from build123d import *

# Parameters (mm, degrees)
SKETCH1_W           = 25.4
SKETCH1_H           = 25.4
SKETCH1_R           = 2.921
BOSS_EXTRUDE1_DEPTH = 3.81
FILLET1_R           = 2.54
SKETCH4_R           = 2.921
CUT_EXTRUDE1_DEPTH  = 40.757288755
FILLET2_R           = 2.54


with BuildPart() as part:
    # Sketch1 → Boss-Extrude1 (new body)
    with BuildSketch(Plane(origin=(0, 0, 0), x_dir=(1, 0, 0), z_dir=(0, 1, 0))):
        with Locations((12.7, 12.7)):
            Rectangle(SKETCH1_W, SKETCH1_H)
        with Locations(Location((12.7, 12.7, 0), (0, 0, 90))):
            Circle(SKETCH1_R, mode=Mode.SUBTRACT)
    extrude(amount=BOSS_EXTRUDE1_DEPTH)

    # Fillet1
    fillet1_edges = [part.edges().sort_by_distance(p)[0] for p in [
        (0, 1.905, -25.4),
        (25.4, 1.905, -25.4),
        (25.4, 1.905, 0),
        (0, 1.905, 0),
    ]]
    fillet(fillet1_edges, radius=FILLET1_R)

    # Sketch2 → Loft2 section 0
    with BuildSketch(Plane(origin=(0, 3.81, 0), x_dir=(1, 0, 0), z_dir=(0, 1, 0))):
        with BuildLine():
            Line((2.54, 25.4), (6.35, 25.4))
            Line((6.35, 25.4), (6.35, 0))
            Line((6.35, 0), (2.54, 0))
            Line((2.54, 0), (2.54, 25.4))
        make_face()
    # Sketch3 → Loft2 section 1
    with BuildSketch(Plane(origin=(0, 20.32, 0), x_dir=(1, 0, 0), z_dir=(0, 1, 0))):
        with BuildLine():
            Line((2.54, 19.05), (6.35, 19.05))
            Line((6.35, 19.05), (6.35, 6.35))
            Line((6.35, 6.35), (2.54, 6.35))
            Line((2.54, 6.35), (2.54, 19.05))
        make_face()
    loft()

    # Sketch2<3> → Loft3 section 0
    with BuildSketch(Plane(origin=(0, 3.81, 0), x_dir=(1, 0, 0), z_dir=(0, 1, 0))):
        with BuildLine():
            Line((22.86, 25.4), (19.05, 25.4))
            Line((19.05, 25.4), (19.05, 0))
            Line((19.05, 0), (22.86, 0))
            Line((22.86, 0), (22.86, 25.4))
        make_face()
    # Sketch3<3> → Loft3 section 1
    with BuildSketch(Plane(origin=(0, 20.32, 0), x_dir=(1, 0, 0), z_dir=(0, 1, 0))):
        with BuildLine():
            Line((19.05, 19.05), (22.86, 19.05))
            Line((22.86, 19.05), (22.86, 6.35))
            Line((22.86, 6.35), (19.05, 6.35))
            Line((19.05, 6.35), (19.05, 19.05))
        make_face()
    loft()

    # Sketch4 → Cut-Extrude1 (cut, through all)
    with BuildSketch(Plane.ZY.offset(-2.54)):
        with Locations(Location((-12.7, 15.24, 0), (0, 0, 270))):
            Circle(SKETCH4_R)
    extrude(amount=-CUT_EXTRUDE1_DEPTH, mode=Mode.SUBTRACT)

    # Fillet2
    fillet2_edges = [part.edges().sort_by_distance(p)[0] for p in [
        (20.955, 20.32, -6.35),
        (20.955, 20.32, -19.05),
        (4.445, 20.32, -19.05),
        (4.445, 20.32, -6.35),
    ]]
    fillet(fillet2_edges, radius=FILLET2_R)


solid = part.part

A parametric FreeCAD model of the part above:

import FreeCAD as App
import Part
import Sketcher
from FreeCAD import Vector
Q = App.Units.Quantity


def edges_at(feature, points):
    """Names of the edges that pass closest to the given points."""
    edges = feature.Shape.Edges
    near = lambda p: min(range(len(edges)), key=lambda i: edges[i].distToShape(Part.Vertex(*p))[0])
    return sorted({f"Edge{near(p) + 1}" for p in points})


def add_polygon(sketch, points):
    """Adds a closed chain of lines whose ends are joined by coincident constraints."""
    first, n = sketch.GeometryCount, len(points)
    for a, b in zip(points, points[1:] + points[:1]):
        sketch.addGeometry(Part.LineSegment(App.Vector(*a, 0), App.Vector(*b, 0)), False)
    for i in range(n):
        sketch.addConstraint(Sketcher.Constraint("Coincident", first + i, 2, first + (i + 1) % n, 1))

doc = App.newDocument("Part")
params = doc.addObject("Spreadsheet::Sheet", "Params")
for row, (alias, value) in enumerate([
    ("sketch1_diameter", "0.23 in"),
    ("sketch1_width", "1 in"),
    ("pad1_length", "0.15 in"),
    ("fillet_radius", "0.1 in"),
    ("sketch2_height", "1 in"),
    ("sketch2_width", "0.15 in"),
    ("sketch3_height", "0.5 in"),
    ("sketch3_width", "0.15 in"),
    ("sketch4_height", "1 in"),
    ("sketch4_width", "0.15 in"),
    ("sketch5_height", "0.5 in"),
    ("sketch5_width", "0.15 in"),
    ("sketch6_diameter", "0.23 in"),
    ("fillet2_radius", "0.1 in"),
], start=1):
    params.set(f"A{row}", alias)
    params.set(f"B{row}", "=" + value)
    params.setAlias(f"B{row}", alias)

body = doc.addObject("PartDesign::Body", "Body")

# Sketch on XZ plane
sketch1 = doc.addObject("Sketcher::SketchObject", "Sketch")
body.addObject(sketch1)
sketch1.AttachmentSupport = (doc.XZ_Plane, [""])
sketch1.MapMode = "FlatFace"
add_polygon(sketch1, [(0, -25.4), (0, 0), (25.4, 0), (25.4, -25.4)])  # lines 0-3
sketch1.addGeometry(Part.Circle(Vector(12.7, -12.7, 0), Vector(0, 0, 1), 2.9), False)  # 4
sketch1.addConstraint([
    Sketcher.Constraint("Vertical", 0),
    Sketcher.Constraint("Horizontal", 1),
    Sketcher.Constraint("Vertical", 2),
    Sketcher.Constraint("Horizontal", 3),
    Sketcher.Constraint("Coincident", 0, 2, -1, 1),
    Sketcher.Constraint("Equal", 3, 0),
    Sketcher.Constraint("Diameter", 4, Q("0.23 in")),
    Sketcher.Constraint("DistanceX", 1, 1, 1, 2, Q("1 in")),
    Sketcher.Constraint("DistanceX", -1, 1, 4, 3, Q("0.5 in")),
    Sketcher.Constraint("DistanceY", 4, 3, -1, 1, Q("0.5 in")),
])
sketch1.setExpression("Constraints[10]", "Params.sketch1_diameter")
sketch1.setExpression("Constraints[11]", "Params.sketch1_width")
pad1 = doc.addObject("PartDesign::Pad", "Pad")
body.addObject(pad1)
pad1.Profile = sketch1
pad1.setExpression("Length", "Params.pad1_length")
pad1.Reversed = True
doc.recompute()

fillet = doc.addObject("PartDesign::Fillet", "Fillet")
body.addObject(fillet)
fillet.Base = (pad1, edges_at(pad1, [
    (0, 1.905, -25.4),
    (25.4, 1.905, -25.4),
    (25.4, 1.905, 0),
    (0, 1.905, 0),
]))
fillet.setExpression("Radius", "Params.fillet_radius")

# Sketch on XZ plane
sketch2 = doc.addObject("Sketcher::SketchObject", "Sketch001")
body.addObject(sketch2)
sketch2.AttachmentSupport = (doc.XZ_Plane, [""])
sketch2.MapMode = "FlatFace"
sketch2.AttachmentOffset = App.Placement(Vector(0, 0, -0.15 * 25.4), App.Rotation())
add_polygon(sketch2, [(6.3, -25.4), (2.5, -25.4), (2.5, 0), (6.3, 0)])  # lines 0-3
sketch2.addConstraint([
    Sketcher.Constraint("Horizontal", 0),
    Sketcher.Constraint("Vertical", 1),
    Sketcher.Constraint("Horizontal", 2),
    Sketcher.Constraint("Vertical", 3),
    Sketcher.Constraint("PointOnObject", 1, 2, -1),
    Sketcher.Constraint("DistanceY", 1, 1, 1, 2, Q("1 in")),
    Sketcher.Constraint("DistanceX", 0, 2, 0, 1, Q("0.15 in")),
    Sketcher.Constraint("DistanceX", -1, 1, 0, 2, Q("0.1 in")),
])
sketch2.setExpression("Constraints[9]", "Params.sketch2_height")
sketch2.setExpression("Constraints[10]", "Params.sketch2_width")

# Sketch on XZ plane
sketch3 = doc.addObject("Sketcher::SketchObject", "Sketch002")
body.addObject(sketch3)
sketch3.AttachmentSupport = (doc.XZ_Plane, [""])
sketch3.MapMode = "FlatFace"
sketch3.AttachmentOffset = App.Placement(Vector(0, 0, -0.8 * 25.4), App.Rotation())
add_polygon(sketch3, [(6.3, -19.1), (2.5, -19.1), (2.5, -6.3), (6.3, -6.3)])  # lines 0-3
sketch3.addConstraint([
    Sketcher.Constraint("Horizontal", 0),
    Sketcher.Constraint("Vertical", 1),
    Sketcher.Constraint("Horizontal", 2),
    Sketcher.Constraint("Vertical", 3),
    Sketcher.Constraint("DistanceY", 1, 1, 1, 2, Q("0.5 in")),
    Sketcher.Constraint("DistanceX", 0, 2, 0, 1, Q("0.15 in")),
    Sketcher.Constraint("DistanceX", -1, 1, 0, 2, Q("0.1 in")),
    Sketcher.Constraint("DistanceY", 0, 2, -1, 1, Q("0.75 in")),
])
sketch3.setExpression("Constraints[8]", "Params.sketch3_height")
sketch3.setExpression("Constraints[9]", "Params.sketch3_width")

additiveloft = doc.addObject("PartDesign::AdditiveLoft", "AdditiveLoft")
body.addObject(additiveloft)
additiveloft.Profile = sketch2
additiveloft.Sections = [sketch3]

# Sketch on XZ plane
sketch4 = doc.addObject("Sketcher::SketchObject", "Sketch003")
body.addObject(sketch4)
sketch4.AttachmentSupport = (doc.XZ_Plane, [""])
sketch4.MapMode = "FlatFace"
sketch4.AttachmentOffset = App.Placement(Vector(0, 0, -0.15 * 25.4), App.Rotation())
add_polygon(sketch4, [(22.9, -25.4), (19.1, -25.4), (19.1, 0), (22.9, 0)])  # lines 0-3
sketch4.addConstraint([
    Sketcher.Constraint("Horizontal", 0),
    Sketcher.Constraint("Vertical", 1),
    Sketcher.Constraint("Horizontal", 2),
    Sketcher.Constraint("Vertical", 3),
    Sketcher.Constraint("PointOnObject", 1, 2, -1),
    Sketcher.Constraint("DistanceY", 1, 1, 1, 2, Q("1 in")),
    Sketcher.Constraint("DistanceX", 0, 2, 0, 1, Q("0.15 in")),
    Sketcher.Constraint("DistanceX", -1, 1, 2, 2, Q("0.9 in")),
])
sketch4.setExpression("Constraints[9]", "Params.sketch4_height")
sketch4.setExpression("Constraints[10]", "Params.sketch4_width")

# Sketch on XZ plane
sketch5 = doc.addObject("Sketcher::SketchObject", "Sketch004")
body.addObject(sketch5)
sketch5.AttachmentSupport = (doc.XZ_Plane, [""])
sketch5.MapMode = "FlatFace"
sketch5.AttachmentOffset = App.Placement(Vector(0, 0, -0.8 * 25.4), App.Rotation())
add_polygon(sketch5, [(22.9, -19.1), (19.1, -19.1), (19.1, -6.3), (22.9, -6.3)])  # lines 0-3
sketch5.addConstraint([
    Sketcher.Constraint("Horizontal", 0),
    Sketcher.Constraint("Vertical", 1),
    Sketcher.Constraint("Horizontal", 2),
    Sketcher.Constraint("Vertical", 3),
    Sketcher.Constraint("DistanceY", 1, 1, 1, 2, Q("0.5 in")),
    Sketcher.Constraint("DistanceX", 0, 2, 0, 1, Q("0.15 in")),
    Sketcher.Constraint("DistanceX", -1, 1, 2, 2, Q("0.9 in")),
    Sketcher.Constraint("DistanceY", 0, 2, -1, 1, Q("0.75 in")),
])
sketch5.setExpression("Constraints[8]", "Params.sketch5_height")
sketch5.setExpression("Constraints[9]", "Params.sketch5_width")

additiveloft2 = doc.addObject("PartDesign::AdditiveLoft", "AdditiveLoft001")
body.addObject(additiveloft2)
additiveloft2.Profile = sketch4
additiveloft2.Sections = [sketch5]

# Sketch on YZ plane
sketch6 = doc.addObject("Sketcher::SketchObject", "Sketch005")
body.addObject(sketch6)
sketch6.AttachmentSupport = (doc.YZ_Plane, [""])
sketch6.MapMode = "FlatFace"
sketch6.AttachmentOffset = App.Placement(Vector(0, 0, 0.1 * 25.4), App.Rotation())
sketch6.addGeometry(Part.Circle(Vector(15.2, -12.7, 0), Vector(0, 0, 1), 2.9), False)
sketch6.addConstraint([
    Sketcher.Constraint("Diameter", 0, Q("0.23 in")),
    Sketcher.Constraint("DistanceX", -1, 1, 0, 3, Q("0.6 in")),
    Sketcher.Constraint("DistanceY", 0, 3, -1, 1, Q("0.5 in")),
])
sketch6.setExpression("Constraints[0]", "Params.sketch6_diameter")
pocket1 = doc.addObject("PartDesign::Pocket", "Pocket")
body.addObject(pocket1)
pocket1.Profile = sketch6
pocket1.Type = "ThroughAll"
pocket1.Reversed = True
doc.recompute()

fillet2 = doc.addObject("PartDesign::Fillet", "Fillet001")
body.addObject(fillet2)
fillet2.Base = (pocket1, edges_at(pocket1, [
    (20.955, 20.32, -6.35),
    (20.955, 20.32, -19.05),
    (4.445, 20.32, -19.05),
    (4.445, 20.32, -6.35),
]))
fillet2.setExpression("Radius", "Params.fillet2_radius")

doc.recompute()
